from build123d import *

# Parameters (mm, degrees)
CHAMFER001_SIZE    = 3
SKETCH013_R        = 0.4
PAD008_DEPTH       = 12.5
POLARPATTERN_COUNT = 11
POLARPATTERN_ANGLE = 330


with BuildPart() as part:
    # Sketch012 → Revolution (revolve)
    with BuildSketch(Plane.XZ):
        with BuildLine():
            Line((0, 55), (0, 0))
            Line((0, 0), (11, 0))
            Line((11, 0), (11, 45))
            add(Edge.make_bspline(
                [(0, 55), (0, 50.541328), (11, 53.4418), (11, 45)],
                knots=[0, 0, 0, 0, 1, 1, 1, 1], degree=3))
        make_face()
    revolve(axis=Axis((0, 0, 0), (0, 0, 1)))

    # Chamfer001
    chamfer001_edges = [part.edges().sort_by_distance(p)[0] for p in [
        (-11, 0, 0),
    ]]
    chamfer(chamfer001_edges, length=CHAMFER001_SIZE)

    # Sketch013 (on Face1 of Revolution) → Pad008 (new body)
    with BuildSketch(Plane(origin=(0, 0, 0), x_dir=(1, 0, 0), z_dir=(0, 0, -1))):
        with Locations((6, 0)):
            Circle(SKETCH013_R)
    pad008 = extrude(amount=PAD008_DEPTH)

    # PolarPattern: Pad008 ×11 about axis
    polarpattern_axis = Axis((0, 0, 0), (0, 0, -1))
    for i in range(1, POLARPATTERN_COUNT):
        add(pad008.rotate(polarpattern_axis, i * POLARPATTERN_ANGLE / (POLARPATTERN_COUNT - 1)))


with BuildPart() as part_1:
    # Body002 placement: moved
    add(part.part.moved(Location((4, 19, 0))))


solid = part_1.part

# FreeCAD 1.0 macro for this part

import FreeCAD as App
import Part
import Sketcher
from FreeCAD import Vector
Q = App.Units.Quantity


def edges_at(feature, points):
    """Names of the edges that pass closest to the given points."""
    edges = feature.Shape.Edges
    near = lambda p: min(range(len(edges)), key=lambda i: edges[i].distToShape(Part.Vertex(*p))[0])
    return sorted({f"Edge{near(p) + 1}" for p in points})

doc = App.newDocument("Part")
body = doc.addObject("PartDesign::Body", "Body")

sketch1 = doc.addObject("Sketcher::SketchObject", "Sketch")
body.addObject(sketch1)
sketch1.AttachmentSupport = (doc.XZ_Plane, [""])
sketch1.MapMode = "FlatFace"
sketch1.addGeometry([
    Part.LineSegment(Vector(0, 55, 0), Vector(0, 0, 0)),
    Part.LineSegment(Vector(0, 0, 0), Vector(11, 0, 0)),
    Part.LineSegment(Vector(11, 0, 0), Vector(11, 45, 0)),
    Part.BSplineCurve([Vector(0, 55, 0), Vector(0, 50.541328, 0), Vector(11, 53.4418, 0), Vector(11, 45, 0)], [4, 4], [0, 1], False, 3, [1, 1, 1, 1], False),
], False)
sketch1.addConstraint([
    Sketcher.Constraint("Block", 3),
    Sketcher.Constraint("Coincident", 0, 2, 1, 1),
    Sketcher.Constraint("Coincident", 1, 2, 2, 1),
    Sketcher.Constraint("Coincident", 2, 2, 3, 2),
    Sketcher.Constraint("Coincident", 3, 1, 0, 1),
    Sketcher.Constraint("Vertical", 0),
    Sketcher.Constraint("Horizontal", 1),
    Sketcher.Constraint("Vertical", 2),
    Sketcher.Constraint("PointOnObject", 1, 2, -1),
])
revolution = doc.addObject("PartDesign::Revolution", "Revolution")
body.addObject(revolution)
revolution.Profile = sketch1
revolution.ReferenceAxis = (sketch1, ["V_Axis"])
revolution.Angle = 360
doc.recompute()

chamfer = doc.addObject("PartDesign::Chamfer", "Chamfer")
body.addObject(chamfer)
chamfer.Base = (revolution, edges_at(revolution, [(-11, 0, 0)]))
chamfer.Size = 3

sketch2 = doc.addObject("Sketcher::SketchObject", "Sketch001")
body.addObject(sketch2)
sketch2.AttachmentSupport = (doc.XY_Plane, [""])
sketch2.MapMode = "FlatFace"
sketch2.addGeometry(Part.Circle(Vector(6, 0, 0), Vector(0, 0, 1), 0.4), False)
sketch2.addConstraint([
    Sketcher.Constraint("PointOnObject", 0, 3, -1),
    Sketcher.Constraint("Diameter", 0, Q("0.8 mm")),
    Sketcher.Constraint("DistanceX", -1, 1, 0, 3, Q("6 mm")),
])
pad1 = doc.addObject("PartDesign::Pad", "Pad")
body.addObject(pad1)
pad1.Profile = sketch2
pad1.Length = 12.5
pad1.Reversed = True
doc.recompute()

polarpattern = doc.addObject("PartDesign::PolarPattern", "PolarPattern")
body.addObject(polarpattern)
polarpattern.Originals = [pad1]
polarpattern.Axis = (doc.Z_Axis, [""])
polarpattern.Angle = 330
polarpattern.Occurrences = 11
polarpattern.Reversed = True
body.Tip = polarpattern
body2 = doc.addObject("PartDesign::Body", "Body001")
doc.recompute()

body.Placement = App.Placement(Vector(4, 19, 0), App.Rotation(Vector(0, 0, 1), 0))
boolean = doc.addObject("PartDesign::Boolean", "Boolean")
body2.addObject(boolean)
boolean.Type = "Fuse"
boolean.addObjects([body])

doc.recompute()
